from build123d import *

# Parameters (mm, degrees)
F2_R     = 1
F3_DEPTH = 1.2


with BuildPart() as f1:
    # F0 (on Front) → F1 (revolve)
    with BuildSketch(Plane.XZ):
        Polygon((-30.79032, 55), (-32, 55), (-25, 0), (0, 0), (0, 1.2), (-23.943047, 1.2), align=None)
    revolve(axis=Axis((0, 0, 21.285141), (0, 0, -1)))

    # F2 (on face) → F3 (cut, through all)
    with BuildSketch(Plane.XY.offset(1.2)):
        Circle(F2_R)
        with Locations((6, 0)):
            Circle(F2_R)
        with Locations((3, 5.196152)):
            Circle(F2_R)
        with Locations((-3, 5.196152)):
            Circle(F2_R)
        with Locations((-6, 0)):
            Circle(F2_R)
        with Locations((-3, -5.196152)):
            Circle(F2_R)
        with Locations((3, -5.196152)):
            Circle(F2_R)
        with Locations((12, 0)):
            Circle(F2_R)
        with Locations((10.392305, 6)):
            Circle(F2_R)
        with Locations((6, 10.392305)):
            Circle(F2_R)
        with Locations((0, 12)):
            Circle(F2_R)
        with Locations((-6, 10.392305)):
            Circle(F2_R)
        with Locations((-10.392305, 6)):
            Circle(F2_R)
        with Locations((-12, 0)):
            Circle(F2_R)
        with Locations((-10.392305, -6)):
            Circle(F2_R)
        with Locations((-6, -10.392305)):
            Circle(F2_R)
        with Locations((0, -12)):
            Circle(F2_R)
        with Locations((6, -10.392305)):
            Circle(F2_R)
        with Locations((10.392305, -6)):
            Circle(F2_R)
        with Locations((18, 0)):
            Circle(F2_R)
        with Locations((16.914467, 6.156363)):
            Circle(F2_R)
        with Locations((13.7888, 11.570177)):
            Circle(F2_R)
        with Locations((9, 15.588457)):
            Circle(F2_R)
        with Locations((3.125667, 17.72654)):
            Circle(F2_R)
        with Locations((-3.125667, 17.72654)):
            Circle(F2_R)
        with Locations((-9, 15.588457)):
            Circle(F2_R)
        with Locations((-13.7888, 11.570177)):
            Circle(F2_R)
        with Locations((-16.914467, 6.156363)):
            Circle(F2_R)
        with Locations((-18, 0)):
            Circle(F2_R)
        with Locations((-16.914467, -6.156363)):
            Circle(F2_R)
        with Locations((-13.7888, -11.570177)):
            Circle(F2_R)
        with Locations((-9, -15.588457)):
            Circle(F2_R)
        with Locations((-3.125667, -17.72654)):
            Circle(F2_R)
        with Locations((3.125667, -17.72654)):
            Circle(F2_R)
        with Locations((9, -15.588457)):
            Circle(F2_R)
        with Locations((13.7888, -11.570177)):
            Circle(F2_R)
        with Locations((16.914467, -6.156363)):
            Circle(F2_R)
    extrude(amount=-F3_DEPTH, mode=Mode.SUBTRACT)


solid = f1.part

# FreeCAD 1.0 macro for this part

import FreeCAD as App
import Part
import Sketcher

doc = App.newDocument("Part")
body = doc.addObject("PartDesign::Body", "Body")

# Sketch on XZ plane
sketch1 = body.newObject("Sketcher::SketchObject", "Sketch")
sketch1.AttachmentSupport = (doc.getObject("XZ_Plane"), [""])
sketch1.MapMode = "FlatFace"
sketch1.addGeometry(Part.LineSegment(App.Vector(-30.8, 55, 0), App.Vector(-32, 55, 0)), False)
sketch1.addGeometry(Part.LineSegment(App.Vector(-32, 55, 0), App.Vector(-25, 0, 0)), False)
sketch1.addGeometry(Part.LineSegment(App.Vector(-25, 0, 0), App.Vector(0, 0, 0)), False)
sketch1.addGeometry(Part.LineSegment(App.Vector(0, 0, 0), App.Vector(0, 1.2, 0)), False)
sketch1.addGeometry(Part.LineSegment(App.Vector(0, 1.2, 0), App.Vector(-23.9, 1.2, 0)), False)
sketch1.addGeometry(Part.LineSegment(App.Vector(-23.9, 1.2, 0), App.Vector(-30.8, 55, 0)), False)
sketch1.addConstraint(Sketcher.Constraint("Coincident", 0, 2, 1, 1))
sketch1.addConstraint(Sketcher.Constraint("Coincident", 1, 2, 2, 1))
sketch1.addConstraint(Sketcher.Constraint("Coincident", 2, 2, 3, 1))
sketch1.addConstraint(Sketcher.Constraint("Coincident", 3, 2, 4, 1))
sketch1.addConstraint(Sketcher.Constraint("Coincident", 4, 2, 5, 1))
sketch1.addConstraint(Sketcher.Constraint("Coincident", 5, 2, 0, 1))
sketch1.addConstraint(Sketcher.Constraint("Horizontal", 0))
sketch1.addConstraint(Sketcher.Constraint("Horizontal", 2))
sketch1.addConstraint(Sketcher.Constraint("Vertical", 3))
sketch1.addConstraint(Sketcher.Constraint("Horizontal", 4))
sketch1.addConstraint(Sketcher.Constraint("Coincident", 2, 2, -1, 1))
sketch1.addConstraint(Sketcher.Constraint("Parallel", 1, 5))
sketch1.addConstraint(Sketcher.Constraint("DistanceX", 2, 1, 2, 2, 25.0))
sketch1.addConstraint(Sketcher.Constraint("DistanceY", 3, 1, 3, 2, 1.2))
sketch1.addConstraint(Sketcher.Constraint("DistanceX", 0, 2, -1, 1, 32.0))
sketch1.addConstraint(Sketcher.Constraint("DistanceY", -1, 1, 0, 2, 55.0))
sketch1.addConstraint(Sketcher.Constraint("DistanceX", 0, 2, 0, 1, 1.20968))
revolution = body.newObject("PartDesign::Revolution", "Revolution")
revolution.Profile = sketch1
revolution.ReferenceAxis = (sketch1, ["V_Axis"])
revolution.Angle = 360

# Sketch on XY plane
sketch2 = body.newObject("Sketcher::SketchObject", "Sketch001")
sketch2.AttachmentSupport = (doc.getObject("XY_Plane"), [""])
sketch2.MapMode = "FlatFace"
sketch2.AttachmentOffset = App.Placement(App.Vector(0, 0, 1.2), App.Rotation())
sketch2.addGeometry(Part.Circle(App.Vector(0, 0, 0), App.Vector(0, 0, 1), 1), False)
sketch2.addGeometry(Part.Circle(App.Vector(6, 0, 0), App.Vector(0, 0, 1), 1), False)
sketch2.addGeometry(Part.Circle(App.Vector(3, 5.2, 0), App.Vector(0, 0, 1), 1), False)
sketch2.addGeometry(Part.Circle(App.Vector(-3, 5.2, 0), App.Vector(0, 0, 1), 1), False)
sketch2.addGeometry(Part.Circle(App.Vector(-6, 0, 0), App.Vector(0, 0, 1), 1), False)
sketch2.addGeometry(Part.Circle(App.Vector(-3, -5.2, 0), App.Vector(0, 0, 1), 1), False)
sketch2.addGeometry(Part.Circle(App.Vector(3, -5.2, 0), App.Vector(0, 0, 1), 1), False)
sketch2.addGeometry(Part.Circle(App.Vector(12, 0, 0), App.Vector(0, 0, 1), 1), False)
sketch2.addGeometry(Part.Circle(App.Vector(10.4, 6, 0), App.Vector(0, 0, 1), 1), False)
sketch2.addGeometry(Part.Circle(App.Vector(6, 10.4, 0), App.Vector(0, 0, 1), 1), False)
sketch2.addGeometry(Part.Circle(App.Vector(0, 12, 0), App.Vector(0, 0, 1), 1), False)
sketch2.addGeometry(Part.Circle(App.Vector(-6, 10.4, 0), App.Vector(0, 0, 1), 1), False)
sketch2.addGeometry(Part.Circle(App.Vector(-10.4, 6, 0), App.Vector(0, 0, 1), 1), False)
sketch2.addGeometry(Part.Circle(App.Vector(-12, 0, 0), App.Vector(0, 0, 1), 1), False)
sketch2.addGeometry(Part.Circle(App.Vector(-10.4, -6, 0), App.Vector(0, 0, 1), 1), False)
sketch2.addGeometry(Part.Circle(App.Vector(-6, -10.4, 0), App.Vector(0, 0, 1), 1), False)
sketch2.addGeometry(Part.Circle(App.Vector(0, -12, 0), App.Vector(0, 0, 1), 1), False)
sketch2.addGeometry(Part.Circle(App.Vector(6, -10.4, 0), App.Vector(0, 0, 1), 1), False)
sketch2.addGeometry(Part.Circle(App.Vector(10.4, -6, 0), App.Vector(0, 0, 1), 1), False)
sketch2.addGeometry(Part.Circle(App.Vector(18, 0, 0), App.Vector(0, 0, 1), 1), False)
sketch2.addGeometry(Part.Circle(App.Vector(16.9, 6.2, 0), App.Vector(0, 0, 1), 1), False)
sketch2.addGeometry(Part.Circle(App.Vector(13.8, 11.6, 0), App.Vector(0, 0, 1), 1), False)
sketch2.addGeometry(Part.Circle(App.Vector(9, 15.6, 0), App.Vector(0, 0, 1), 1), False)
sketch2.addGeometry(Part.Circle(App.Vector(3.1, 17.7, 0), App.Vector(0, 0, 1), 1), False)
sketch2.addGeometry(Part.Circle(App.Vector(-3.1, 17.7, 0), App.Vector(0, 0, 1), 1), False)
sketch2.addGeometry(Part.Circle(App.Vector(-9, 15.6, 0), App.Vector(0, 0, 1), 1), False)
sketch2.addGeometry(Part.Circle(App.Vector(-13.8, 11.6, 0), App.Vector(0, 0, 1), 1), False)
sketch2.addGeometry(Part.Circle(App.Vector(-16.9, 6.2, 0), App.Vector(0, 0, 1), 1), False)
sketch2.addGeometry(Part.Circle(App.Vector(-18, 0, 0), App.Vector(0, 0, 1), 1), False)
sketch2.addGeometry(Part.Circle(App.Vector(-16.9, -6.2, 0), App.Vector(0, 0, 1), 1), False)
sketch2.addGeometry(Part.Circle(App.Vector(-13.8, -11.6, 0), App.Vector(0, 0, 1), 1), False)
sketch2.addGeometry(Part.Circle(App.Vector(-9, -15.6, 0), App.Vector(0, 0, 1), 1), False)
sketch2.addGeometry(Part.Circle(App.Vector(-3.1, -17.7, 0), App.Vector(0, 0, 1), 1), False)
sketch2.addGeometry(Part.Circle(App.Vector(3.1, -17.7, 0), App.Vector(0, 0, 1), 1), False)
sketch2.addGeometry(Part.Circle(App.Vector(9, -15.6, 0), App.Vector(0, 0, 1), 1), False)
sketch2.addGeometry(Part.Circle(App.Vector(13.8, -11.6, 0), App.Vector(0, 0, 1), 1), False)
sketch2.addGeometry(Part.Circle(App.Vector(16.9, -6.2, 0), App.Vector(0, 0, 1), 1), False)
sketch2.addConstraint(Sketcher.Constraint("Coincident", 0, 3, -1, 1))
sketch2.addConstraint(Sketcher.Constraint("Equal", 0, 1))
sketch2.addConstraint(Sketcher.Constraint("Equal", 1, 2))
sketch2.addConstraint(Sketcher.Constraint("Equal", 2, 3))
sketch2.addConstraint(Sketcher.Constraint("Equal", 3, 4))
sketch2.addConstraint(Sketcher.Constraint("Equal", 4, 5))
sketch2.addConstraint(Sketcher.Constraint("Equal", 5, 6))
sketch2.addConstraint(Sketcher.Constraint("Equal", 6, 7))
sketch2.addConstraint(Sketcher.Constraint("Equal", 7, 8))
sketch2.addConstraint(Sketcher.Constraint("Equal", 8, 9))
sketch2.addConstraint(Sketcher.Constraint("Equal", 9, 10))
sketch2.addConstraint(Sketcher.Constraint("Equal", 10, 11))
sketch2.addConstraint(Sketcher.Constraint("Equal", 11, 12))
sketch2.addConstraint(Sketcher.Constraint("Equal", 12, 13))
sketch2.addConstraint(Sketcher.Constraint("Equal", 13, 14))
sketch2.addConstraint(Sketcher.Constraint("Equal", 14, 15))
sketch2.addConstraint(Sketcher.Constraint("Equal", 15, 16))
sketch2.addConstraint(Sketcher.Constraint("Equal", 16, 17))
sketch2.addConstraint(Sketcher.Constraint("Equal", 17, 18))
sketch2.addConstraint(Sketcher.Constraint("Equal", 18, 19))
sketch2.addConstraint(Sketcher.Constraint("Equal", 19, 20))
sketch2.addConstraint(Sketcher.Constraint("Equal", 20, 21))
sketch2.addConstraint(Sketcher.Constraint("Equal", 21, 22))
sketch2.addConstraint(Sketcher.Constraint("Equal", 22, 23))
sketch2.addConstraint(Sketcher.Constraint("Equal", 23, 24))
sketch2.addConstraint(Sketcher.Constraint("Equal", 24, 25))
sketch2.addConstraint(Sketcher.Constraint("Equal", 25, 26))
sketch2.addConstraint(Sketcher.Constraint("Equal", 26, 27))
sketch2.addConstraint(Sketcher.Constraint("Equal", 27, 28))
sketch2.addConstraint(Sketcher.Constraint("Equal", 28, 29))
sketch2.addConstraint(Sketcher.Constraint("Equal", 29, 30))
sketch2.addConstraint(Sketcher.Constraint("Equal", 30, 31))
sketch2.addConstraint(Sketcher.Constraint("Equal", 31, 32))
sketch2.addConstraint(Sketcher.Constraint("Equal", 32, 33))
sketch2.addConstraint(Sketcher.Constraint("Equal", 33, 34))
sketch2.addConstraint(Sketcher.Constraint("Equal", 34, 35))
sketch2.addConstraint(Sketcher.Constraint("Equal", 35, 36))
sketch2.addConstraint(Sketcher.Constraint("Symmetric", 1, 3, 4, 3, -1, 1))
sketch2.addConstraint(Sketcher.Constraint("Symmetric", 2, 3, 5, 3, -1, 1))
sketch2.addConstraint(Sketcher.Constraint("Symmetric", 3, 3, 6, 3, -1, 1))
sketch2.addConstraint(Sketcher.Constraint("Symmetric", 7, 3, 13, 3, -1, 1))
sketch2.addConstraint(Sketcher.Constraint("Symmetric", 8, 3, 14, 3, -1, 1))
sketch2.addConstraint(Sketcher.Constraint("Symmetric", 9, 3, 15, 3, -1, 1))
sketch2.addConstraint(Sketcher.Constraint("Symmetric", 10, 3, 16, 3, -1, 1))
sketch2.addConstraint(Sketcher.Constraint("Symmetric", 11, 3, 17, 3, -1, 1))
sketch2.addConstraint(Sketcher.Constraint("Symmetric", 12, 3, 18, 3, -1, 1))
sketch2.addConstraint(Sketcher.Constraint("Symmetric", 19, 3, 28, 3, -1, 1))
sketch2.addConstraint(Sketcher.Constraint("Symmetric", 20, 3, 29, 3, -1, 1))
sketch2.addConstraint(Sketcher.Constraint("Symmetric", 21, 3, 30, 3, -1, 1))
sketch2.addConstraint(Sketcher.Constraint("Symmetric", 22, 3, 31, 3, -1, 1))
sketch2.addConstraint(Sketcher.Constraint("Symmetric", 23, 3, 32, 3, -1, 1))
sketch2.addConstraint(Sketcher.Constraint("Symmetric", 24, 3, 33, 3, -1, 1))
sketch2.addConstraint(Sketcher.Constraint("Symmetric", 25, 3, 34, 3, -1, 1))
sketch2.addConstraint(Sketcher.Constraint("Symmetric", 26, 3, 35, 3, -1, 1))
sketch2.addConstraint(Sketcher.Constraint("Symmetric", 27, 3, 36, 3, -1, 1))
sketch2.addConstraint(Sketcher.Constraint("Symmetric", 2, 3, 3, 3, -2))
sketch2.addConstraint(Sketcher.Constraint("Symmetric", 9, 3, 11, 3, -2))
sketch2.addConstraint(Sketcher.Constraint("Symmetric", 8, 3, 12, 3, -2))
sketch2.addConstraint(Sketcher.Constraint("Symmetric", 23, 3, 24, 3, -2))
sketch2.addConstraint(Sketcher.Constraint("Symmetric", 22, 3, 25, 3, -2))
sketch2.addConstraint(Sketcher.Constraint("Symmetric", 21, 3, 26, 3, -2))
sketch2.addConstraint(Sketcher.Constraint("Symmetric", 20, 3, 27, 3, -2))
sketch2.addConstraint(Sketcher.Constraint("PointOnObject", 1, 3, -1))
sketch2.addConstraint(Sketcher.Constraint("PointOnObject", 7, 3, -1))
sketch2.addConstraint(Sketcher.Constraint("PointOnObject", 10, 3, -2))
sketch2.addConstraint(Sketcher.Constraint("PointOnObject", 19, 3, -1))
sketch2.addConstraint(Sketcher.Constraint("Vertical", 1, 3, 9, 3))
sketch2.addConstraint(Sketcher.Constraint("Diameter", 0, 2.0))
sketch2.addConstraint(Sketcher.Constraint("DistanceX", -1, 1, 1, 3, 6.0))
sketch2.addConstraint(Sketcher.Constraint("DistanceX", -1, 1, 2, 3, 3.0))
sketch2.addConstraint(Sketcher.Constraint("DistanceX", -1, 1, 7, 3, 12.0))
sketch2.addConstraint(Sketcher.Constraint("DistanceY", -1, 1, 8, 3, 6.0))
sketch2.addConstraint(Sketcher.Constraint("DistanceY", -1, 1, 10, 3, 12.0))
sketch2.addConstraint(Sketcher.Constraint("DistanceX", -1, 1, 19, 3, 18.0))
sketch2.addConstraint(Sketcher.Constraint("DistanceX", -1, 1, 22, 3, 9.0))
sketch2.addConstraint(Sketcher.Constraint("DistanceX", -1, 1, 21, 3, 13.7888))
sketch2.addConstraint(Sketcher.Constraint("DistanceY", -1, 1, 2, 3, 5.196152))
sketch2.addConstraint(Sketcher.Constraint("DistanceY", -1, 1, 23, 3, 17.72654))
sketch2.addConstraint(Sketcher.Constraint("DistanceX", 8, 3, 20, 3, 6.522162))
sketch2.addConstraint(Sketcher.Constraint("DistanceY", 9, 3, 21, 3, 1.177872))
sketch2.addConstraint(Sketcher.Constraint("DistanceY", 9, 3, 22, 3, 5.196152))
sketch2.addConstraint(Sketcher.Constraint("DistanceX", -1, 1, 8, 3, 10.392305))
sketch2.addConstraint(Sketcher.Constraint("DistanceY", -1, 1, 9, 3, 10.392305))
sketch2.addConstraint(Sketcher.Constraint("DistanceY", -1, 1, 20, 3, 6.156363))
sketch2.addConstraint(Sketcher.Constraint("DistanceX", -1, 1, 23, 3, 3.125667))
pocket1 = body.newObject("PartDesign::Pocket", "Pocket")
pocket1.Profile = sketch2
pocket1.Type = "ThroughAll"

doc.recompute()
